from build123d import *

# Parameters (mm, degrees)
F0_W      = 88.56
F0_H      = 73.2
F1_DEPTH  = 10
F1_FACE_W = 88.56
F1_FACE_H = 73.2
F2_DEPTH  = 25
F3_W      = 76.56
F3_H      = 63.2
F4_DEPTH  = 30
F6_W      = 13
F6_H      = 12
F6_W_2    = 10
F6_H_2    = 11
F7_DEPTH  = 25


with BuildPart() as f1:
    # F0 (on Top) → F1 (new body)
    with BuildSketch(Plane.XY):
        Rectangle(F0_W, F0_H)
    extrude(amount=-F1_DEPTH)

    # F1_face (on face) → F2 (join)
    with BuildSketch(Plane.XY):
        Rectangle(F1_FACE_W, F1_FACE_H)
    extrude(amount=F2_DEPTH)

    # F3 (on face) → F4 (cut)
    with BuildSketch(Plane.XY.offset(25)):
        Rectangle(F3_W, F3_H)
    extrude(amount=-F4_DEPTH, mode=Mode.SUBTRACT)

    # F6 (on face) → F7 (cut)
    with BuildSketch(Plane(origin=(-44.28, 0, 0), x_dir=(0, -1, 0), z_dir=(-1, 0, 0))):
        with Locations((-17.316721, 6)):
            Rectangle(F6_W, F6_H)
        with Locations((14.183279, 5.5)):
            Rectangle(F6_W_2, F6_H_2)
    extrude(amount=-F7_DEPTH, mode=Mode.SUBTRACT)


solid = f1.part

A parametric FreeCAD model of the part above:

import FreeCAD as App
import Part
import Sketcher
from FreeCAD import Vector

doc = App.newDocument("Part")
body = doc.addObject("PartDesign::Body", "Body")

# Sketch on XY plane
sketch1 = doc.addObject("Sketcher::SketchObject", "Sketch")
body.addObject(sketch1)
sketch1.AttachmentSupport = (doc.XY_Plane, [""])
sketch1.MapMode = "FlatFace"
sketch1.addGeometry(Part.LineSegment(Vector(-44, 37, 0), Vector(-44, -37, 0)), False)
sketch1.addGeometry(Part.LineSegment(Vector(-44, -37, 0), Vector(44, -37, 0)), False)
sketch1.addGeometry(Part.LineSegment(Vector(44, -37, 0), Vector(44, 37, 0)), False)
sketch1.addGeometry(Part.LineSegment(Vector(44, 37, 0), Vector(-44, 37, 0)), False)
sketch1.addConstraint(Sketcher.Constraint("Coincident", 0, 2, 1, 1))
sketch1.addConstraint(Sketcher.Constraint("Coincident", 1, 2, 2, 1))
sketch1.addConstraint(Sketcher.Constraint("Coincident", 2, 2, 3, 1))
sketch1.addConstraint(Sketcher.Constraint("Coincident", 3, 2, 0, 1))
sketch1.addConstraint(Sketcher.Constraint("Vertical", 0))
sketch1.addConstraint(Sketcher.Constraint("Horizontal", 1))
sketch1.addConstraint(Sketcher.Constraint("Vertical", 2))
sketch1.addConstraint(Sketcher.Constraint("Horizontal", 3))
sketch1.addConstraint(Sketcher.Constraint("Symmetric", 0, 2, 2, 2, -1, 1))
sketch1.addConstraint(Sketcher.Constraint("DistanceY", 0, 2, 0, 1, 73.2))
sketch1.addConstraint(Sketcher.Constraint("DistanceX", 1, 1, 1, 2, 88.56))
pad1 = doc.addObject("PartDesign::Pad", "Pad")
body.addObject(pad1)
pad1.Profile = sketch1
pad1.Length = 10
pad1.Reversed = True

# Sketch on XY plane
sketch2 = doc.addObject("Sketcher::SketchObject", "Sketch001")
body.addObject(sketch2)
sketch2.AttachmentSupport = (doc.XY_Plane, [""])
sketch2.MapMode = "FlatFace"
sketch2.addGeometry(Part.LineSegment(Vector(-44, 37, 0), Vector(-44, -37, 0)), False)
sketch2.addGeometry(Part.LineSegment(Vector(-44, -37, 0), Vector(44, -37, 0)), False)
sketch2.addGeometry(Part.LineSegment(Vector(44, -37, 0), Vector(44, 37, 0)), False)
sketch2.addGeometry(Part.LineSegment(Vector(44, 37, 0), Vector(-44, 37, 0)), False)
sketch2.addConstraint(Sketcher.Constraint("Coincident", 0, 2, 1, 1))
sketch2.addConstraint(Sketcher.Constraint("Coincident", 1, 2, 2, 1))
sketch2.addConstraint(Sketcher.Constraint("Coincident", 2, 2, 3, 1))
sketch2.addConstraint(Sketcher.Constraint("Coincident", 3, 2, 0, 1))
sketch2.addConstraint(Sketcher.Constraint("Vertical", 0))
sketch2.addConstraint(Sketcher.Constraint("Horizontal", 1))
sketch2.addConstraint(Sketcher.Constraint("Vertical", 2))
sketch2.addConstraint(Sketcher.Constraint("Horizontal", 3))
sketch2.addConstraint(Sketcher.Constraint("Symmetric", 0, 2, 2, 2, -1, 1))
sketch2.addConstraint(Sketcher.Constraint("DistanceY", 0, 2, 0, 1, 73.2))
sketch2.addConstraint(Sketcher.Constraint("DistanceX", 1, 1, 1, 2, 88.56))
pad2 = doc.addObject("PartDesign::Pad", "Pad001")
body.addObject(pad2)
pad2.Profile = sketch2
pad2.Length = 25

# Sketch on XY plane
sketch3 = doc.addObject("Sketcher::SketchObject", "Sketch002")
body.addObject(sketch3)
sketch3.AttachmentSupport = (doc.XY_Plane, [""])
sketch3.MapMode = "FlatFace"
sketch3.AttachmentOffset = App.Placement(Vector(0, 0, 25), App.Rotation())
sketch3.addGeometry(Part.LineSegment(Vector(-38, 32, 0), Vector(-38, -32, 0)), False)
sketch3.addGeometry(Part.LineSegment(Vector(-38, -32, 0), Vector(38, -32, 0)), False)
sketch3.addGeometry(Part.LineSegment(Vector(38, -32, 0), Vector(38, 32, 0)), False)
sketch3.addGeometry(Part.LineSegment(Vector(38, 32, 0), Vector(-38, 32, 0)), False)
sketch3.addConstraint(Sketcher.Constraint("Coincident", 0, 2, 1, 1))
sketch3.addConstraint(Sketcher.Constraint("Coincident", 1, 2, 2, 1))
sketch3.addConstraint(Sketcher.Constraint("Coincident", 2, 2, 3, 1))
sketch3.addConstraint(Sketcher.Constraint("Coincident", 3, 2, 0, 1))
sketch3.addConstraint(Sketcher.Constraint("Vertical", 0))
sketch3.addConstraint(Sketcher.Constraint("Horizontal", 1))
sketch3.addConstraint(Sketcher.Constraint("Vertical", 2))
sketch3.addConstraint(Sketcher.Constraint("Horizontal", 3))
sketch3.addConstraint(Sketcher.Constraint("Symmetric", 0, 2, 2, 2, -1, 1))
sketch3.addConstraint(Sketcher.Constraint("DistanceY", 0, 2, 0, 1, 63.2))
sketch3.addConstraint(Sketcher.Constraint("DistanceX", 1, 1, 1, 2, 76.56))
pocket1 = doc.addObject("PartDesign::Pocket", "Pocket")
body.addObject(pocket1)
pocket1.Profile = sketch3
pocket1.Length = 30

# Sketch on YZ plane
sketch4 = doc.addObject("Sketcher::SketchObject", "Sketch003")
body.addObject(sketch4)
sketch4.AttachmentSupport = (doc.YZ_Plane, [""])
sketch4.MapMode = "FlatFace"
sketch4.AttachmentOffset = App.Placement(Vector(0, 0, -44.28), App.Rotation())
sketch4.addGeometry(Part.LineSegment(Vector(24, 12, 0), Vector(24, 0, 0)), False)
sketch4.addGeometry(Part.LineSegment(Vector(24, 0, 0), Vector(11, 0, 0)), False)
sketch4.addGeometry(Part.LineSegment(Vector(11, 0, 0), Vector(11, 12, 0)), False)
sketch4.addGeometry(Part.LineSegment(Vector(11, 12, 0), Vector(24, 12, 0)), False)
sketch4.addGeometry(Part.LineSegment(Vector(-9, 11, 0), Vector(-9, 0, 0)), False)
sketch4.addGeometry(Part.LineSegment(Vector(-9, 0, 0), Vector(-19, 0, 0)), False)
sketch4.addGeometry(Part.LineSegment(Vector(-19, 0, 0), Vector(-19, 11, 0)), False)
sketch4.addGeometry(Part.LineSegment(Vector(-19, 11, 0), Vector(-9, 11, 0)), False)
sketch4.addConstraint(Sketcher.Constraint("Coincident", 0, 2, 1, 1))
sketch4.addConstraint(Sketcher.Constraint("Coincident", 1, 2, 2, 1))
sketch4.addConstraint(Sketcher.Constraint("Coincident", 2, 2, 3, 1))
sketch4.addConstraint(Sketcher.Constraint("Coincident", 3, 2, 0, 1))
sketch4.addConstraint(Sketcher.Constraint("Coincident", 4, 2, 5, 1))
sketch4.addConstraint(Sketcher.Constraint("Coincident", 5, 2, 6, 1))
sketch4.addConstraint(Sketcher.Constraint("Coincident", 6, 2, 7, 1))
sketch4.addConstraint(Sketcher.Constraint("Coincident", 7, 2, 4, 1))
sketch4.addConstraint(Sketcher.Constraint("Vertical", 0))
sketch4.addConstraint(Sketcher.Constraint("Horizontal", 1))
sketch4.addConstraint(Sketcher.Constraint("Vertical", 2))
sketch4.addConstraint(Sketcher.Constraint("Horizontal", 3))
sketch4.addConstraint(Sketcher.Constraint("Vertical", 4))
sketch4.addConstraint(Sketcher.Constraint("Horizontal", 5))
sketch4.addConstraint(Sketcher.Constraint("Vertical", 6))
sketch4.addConstraint(Sketcher.Constraint("Horizontal", 7))
sketch4.addConstraint(Sketcher.Constraint("PointOnObject", 0, 2, -1))
sketch4.addConstraint(Sketcher.Constraint("PointOnObject", 4, 2, -1))
sketch4.addConstraint(Sketcher.Constraint("DistanceX", 1, 2, 1, 1, 13.0))
sketch4.addConstraint(Sketcher.Constraint("DistanceX", 5, 2, 5, 1, 10.0))
sketch4.addConstraint(Sketcher.Constraint("DistanceY", 0, 2, 0, 1, 12.0))
sketch4.addConstraint(Sketcher.Constraint("DistanceY", 4, 2, 4, 1, 11.0))
sketch4.addConstraint(Sketcher.Constraint("DistanceX", 4, 2, 1, 2, 20.0))
sketch4.addConstraint(Sketcher.Constraint("DistanceX", -1, 1, 0, 2, 23.816721))
pocket2 = doc.addObject("PartDesign::Pocket", "Pocket001")
body.addObject(pocket2)
pocket2.Profile = sketch4
pocket2.Length = 25
pocket2.Reversed = True

doc.recompute()
